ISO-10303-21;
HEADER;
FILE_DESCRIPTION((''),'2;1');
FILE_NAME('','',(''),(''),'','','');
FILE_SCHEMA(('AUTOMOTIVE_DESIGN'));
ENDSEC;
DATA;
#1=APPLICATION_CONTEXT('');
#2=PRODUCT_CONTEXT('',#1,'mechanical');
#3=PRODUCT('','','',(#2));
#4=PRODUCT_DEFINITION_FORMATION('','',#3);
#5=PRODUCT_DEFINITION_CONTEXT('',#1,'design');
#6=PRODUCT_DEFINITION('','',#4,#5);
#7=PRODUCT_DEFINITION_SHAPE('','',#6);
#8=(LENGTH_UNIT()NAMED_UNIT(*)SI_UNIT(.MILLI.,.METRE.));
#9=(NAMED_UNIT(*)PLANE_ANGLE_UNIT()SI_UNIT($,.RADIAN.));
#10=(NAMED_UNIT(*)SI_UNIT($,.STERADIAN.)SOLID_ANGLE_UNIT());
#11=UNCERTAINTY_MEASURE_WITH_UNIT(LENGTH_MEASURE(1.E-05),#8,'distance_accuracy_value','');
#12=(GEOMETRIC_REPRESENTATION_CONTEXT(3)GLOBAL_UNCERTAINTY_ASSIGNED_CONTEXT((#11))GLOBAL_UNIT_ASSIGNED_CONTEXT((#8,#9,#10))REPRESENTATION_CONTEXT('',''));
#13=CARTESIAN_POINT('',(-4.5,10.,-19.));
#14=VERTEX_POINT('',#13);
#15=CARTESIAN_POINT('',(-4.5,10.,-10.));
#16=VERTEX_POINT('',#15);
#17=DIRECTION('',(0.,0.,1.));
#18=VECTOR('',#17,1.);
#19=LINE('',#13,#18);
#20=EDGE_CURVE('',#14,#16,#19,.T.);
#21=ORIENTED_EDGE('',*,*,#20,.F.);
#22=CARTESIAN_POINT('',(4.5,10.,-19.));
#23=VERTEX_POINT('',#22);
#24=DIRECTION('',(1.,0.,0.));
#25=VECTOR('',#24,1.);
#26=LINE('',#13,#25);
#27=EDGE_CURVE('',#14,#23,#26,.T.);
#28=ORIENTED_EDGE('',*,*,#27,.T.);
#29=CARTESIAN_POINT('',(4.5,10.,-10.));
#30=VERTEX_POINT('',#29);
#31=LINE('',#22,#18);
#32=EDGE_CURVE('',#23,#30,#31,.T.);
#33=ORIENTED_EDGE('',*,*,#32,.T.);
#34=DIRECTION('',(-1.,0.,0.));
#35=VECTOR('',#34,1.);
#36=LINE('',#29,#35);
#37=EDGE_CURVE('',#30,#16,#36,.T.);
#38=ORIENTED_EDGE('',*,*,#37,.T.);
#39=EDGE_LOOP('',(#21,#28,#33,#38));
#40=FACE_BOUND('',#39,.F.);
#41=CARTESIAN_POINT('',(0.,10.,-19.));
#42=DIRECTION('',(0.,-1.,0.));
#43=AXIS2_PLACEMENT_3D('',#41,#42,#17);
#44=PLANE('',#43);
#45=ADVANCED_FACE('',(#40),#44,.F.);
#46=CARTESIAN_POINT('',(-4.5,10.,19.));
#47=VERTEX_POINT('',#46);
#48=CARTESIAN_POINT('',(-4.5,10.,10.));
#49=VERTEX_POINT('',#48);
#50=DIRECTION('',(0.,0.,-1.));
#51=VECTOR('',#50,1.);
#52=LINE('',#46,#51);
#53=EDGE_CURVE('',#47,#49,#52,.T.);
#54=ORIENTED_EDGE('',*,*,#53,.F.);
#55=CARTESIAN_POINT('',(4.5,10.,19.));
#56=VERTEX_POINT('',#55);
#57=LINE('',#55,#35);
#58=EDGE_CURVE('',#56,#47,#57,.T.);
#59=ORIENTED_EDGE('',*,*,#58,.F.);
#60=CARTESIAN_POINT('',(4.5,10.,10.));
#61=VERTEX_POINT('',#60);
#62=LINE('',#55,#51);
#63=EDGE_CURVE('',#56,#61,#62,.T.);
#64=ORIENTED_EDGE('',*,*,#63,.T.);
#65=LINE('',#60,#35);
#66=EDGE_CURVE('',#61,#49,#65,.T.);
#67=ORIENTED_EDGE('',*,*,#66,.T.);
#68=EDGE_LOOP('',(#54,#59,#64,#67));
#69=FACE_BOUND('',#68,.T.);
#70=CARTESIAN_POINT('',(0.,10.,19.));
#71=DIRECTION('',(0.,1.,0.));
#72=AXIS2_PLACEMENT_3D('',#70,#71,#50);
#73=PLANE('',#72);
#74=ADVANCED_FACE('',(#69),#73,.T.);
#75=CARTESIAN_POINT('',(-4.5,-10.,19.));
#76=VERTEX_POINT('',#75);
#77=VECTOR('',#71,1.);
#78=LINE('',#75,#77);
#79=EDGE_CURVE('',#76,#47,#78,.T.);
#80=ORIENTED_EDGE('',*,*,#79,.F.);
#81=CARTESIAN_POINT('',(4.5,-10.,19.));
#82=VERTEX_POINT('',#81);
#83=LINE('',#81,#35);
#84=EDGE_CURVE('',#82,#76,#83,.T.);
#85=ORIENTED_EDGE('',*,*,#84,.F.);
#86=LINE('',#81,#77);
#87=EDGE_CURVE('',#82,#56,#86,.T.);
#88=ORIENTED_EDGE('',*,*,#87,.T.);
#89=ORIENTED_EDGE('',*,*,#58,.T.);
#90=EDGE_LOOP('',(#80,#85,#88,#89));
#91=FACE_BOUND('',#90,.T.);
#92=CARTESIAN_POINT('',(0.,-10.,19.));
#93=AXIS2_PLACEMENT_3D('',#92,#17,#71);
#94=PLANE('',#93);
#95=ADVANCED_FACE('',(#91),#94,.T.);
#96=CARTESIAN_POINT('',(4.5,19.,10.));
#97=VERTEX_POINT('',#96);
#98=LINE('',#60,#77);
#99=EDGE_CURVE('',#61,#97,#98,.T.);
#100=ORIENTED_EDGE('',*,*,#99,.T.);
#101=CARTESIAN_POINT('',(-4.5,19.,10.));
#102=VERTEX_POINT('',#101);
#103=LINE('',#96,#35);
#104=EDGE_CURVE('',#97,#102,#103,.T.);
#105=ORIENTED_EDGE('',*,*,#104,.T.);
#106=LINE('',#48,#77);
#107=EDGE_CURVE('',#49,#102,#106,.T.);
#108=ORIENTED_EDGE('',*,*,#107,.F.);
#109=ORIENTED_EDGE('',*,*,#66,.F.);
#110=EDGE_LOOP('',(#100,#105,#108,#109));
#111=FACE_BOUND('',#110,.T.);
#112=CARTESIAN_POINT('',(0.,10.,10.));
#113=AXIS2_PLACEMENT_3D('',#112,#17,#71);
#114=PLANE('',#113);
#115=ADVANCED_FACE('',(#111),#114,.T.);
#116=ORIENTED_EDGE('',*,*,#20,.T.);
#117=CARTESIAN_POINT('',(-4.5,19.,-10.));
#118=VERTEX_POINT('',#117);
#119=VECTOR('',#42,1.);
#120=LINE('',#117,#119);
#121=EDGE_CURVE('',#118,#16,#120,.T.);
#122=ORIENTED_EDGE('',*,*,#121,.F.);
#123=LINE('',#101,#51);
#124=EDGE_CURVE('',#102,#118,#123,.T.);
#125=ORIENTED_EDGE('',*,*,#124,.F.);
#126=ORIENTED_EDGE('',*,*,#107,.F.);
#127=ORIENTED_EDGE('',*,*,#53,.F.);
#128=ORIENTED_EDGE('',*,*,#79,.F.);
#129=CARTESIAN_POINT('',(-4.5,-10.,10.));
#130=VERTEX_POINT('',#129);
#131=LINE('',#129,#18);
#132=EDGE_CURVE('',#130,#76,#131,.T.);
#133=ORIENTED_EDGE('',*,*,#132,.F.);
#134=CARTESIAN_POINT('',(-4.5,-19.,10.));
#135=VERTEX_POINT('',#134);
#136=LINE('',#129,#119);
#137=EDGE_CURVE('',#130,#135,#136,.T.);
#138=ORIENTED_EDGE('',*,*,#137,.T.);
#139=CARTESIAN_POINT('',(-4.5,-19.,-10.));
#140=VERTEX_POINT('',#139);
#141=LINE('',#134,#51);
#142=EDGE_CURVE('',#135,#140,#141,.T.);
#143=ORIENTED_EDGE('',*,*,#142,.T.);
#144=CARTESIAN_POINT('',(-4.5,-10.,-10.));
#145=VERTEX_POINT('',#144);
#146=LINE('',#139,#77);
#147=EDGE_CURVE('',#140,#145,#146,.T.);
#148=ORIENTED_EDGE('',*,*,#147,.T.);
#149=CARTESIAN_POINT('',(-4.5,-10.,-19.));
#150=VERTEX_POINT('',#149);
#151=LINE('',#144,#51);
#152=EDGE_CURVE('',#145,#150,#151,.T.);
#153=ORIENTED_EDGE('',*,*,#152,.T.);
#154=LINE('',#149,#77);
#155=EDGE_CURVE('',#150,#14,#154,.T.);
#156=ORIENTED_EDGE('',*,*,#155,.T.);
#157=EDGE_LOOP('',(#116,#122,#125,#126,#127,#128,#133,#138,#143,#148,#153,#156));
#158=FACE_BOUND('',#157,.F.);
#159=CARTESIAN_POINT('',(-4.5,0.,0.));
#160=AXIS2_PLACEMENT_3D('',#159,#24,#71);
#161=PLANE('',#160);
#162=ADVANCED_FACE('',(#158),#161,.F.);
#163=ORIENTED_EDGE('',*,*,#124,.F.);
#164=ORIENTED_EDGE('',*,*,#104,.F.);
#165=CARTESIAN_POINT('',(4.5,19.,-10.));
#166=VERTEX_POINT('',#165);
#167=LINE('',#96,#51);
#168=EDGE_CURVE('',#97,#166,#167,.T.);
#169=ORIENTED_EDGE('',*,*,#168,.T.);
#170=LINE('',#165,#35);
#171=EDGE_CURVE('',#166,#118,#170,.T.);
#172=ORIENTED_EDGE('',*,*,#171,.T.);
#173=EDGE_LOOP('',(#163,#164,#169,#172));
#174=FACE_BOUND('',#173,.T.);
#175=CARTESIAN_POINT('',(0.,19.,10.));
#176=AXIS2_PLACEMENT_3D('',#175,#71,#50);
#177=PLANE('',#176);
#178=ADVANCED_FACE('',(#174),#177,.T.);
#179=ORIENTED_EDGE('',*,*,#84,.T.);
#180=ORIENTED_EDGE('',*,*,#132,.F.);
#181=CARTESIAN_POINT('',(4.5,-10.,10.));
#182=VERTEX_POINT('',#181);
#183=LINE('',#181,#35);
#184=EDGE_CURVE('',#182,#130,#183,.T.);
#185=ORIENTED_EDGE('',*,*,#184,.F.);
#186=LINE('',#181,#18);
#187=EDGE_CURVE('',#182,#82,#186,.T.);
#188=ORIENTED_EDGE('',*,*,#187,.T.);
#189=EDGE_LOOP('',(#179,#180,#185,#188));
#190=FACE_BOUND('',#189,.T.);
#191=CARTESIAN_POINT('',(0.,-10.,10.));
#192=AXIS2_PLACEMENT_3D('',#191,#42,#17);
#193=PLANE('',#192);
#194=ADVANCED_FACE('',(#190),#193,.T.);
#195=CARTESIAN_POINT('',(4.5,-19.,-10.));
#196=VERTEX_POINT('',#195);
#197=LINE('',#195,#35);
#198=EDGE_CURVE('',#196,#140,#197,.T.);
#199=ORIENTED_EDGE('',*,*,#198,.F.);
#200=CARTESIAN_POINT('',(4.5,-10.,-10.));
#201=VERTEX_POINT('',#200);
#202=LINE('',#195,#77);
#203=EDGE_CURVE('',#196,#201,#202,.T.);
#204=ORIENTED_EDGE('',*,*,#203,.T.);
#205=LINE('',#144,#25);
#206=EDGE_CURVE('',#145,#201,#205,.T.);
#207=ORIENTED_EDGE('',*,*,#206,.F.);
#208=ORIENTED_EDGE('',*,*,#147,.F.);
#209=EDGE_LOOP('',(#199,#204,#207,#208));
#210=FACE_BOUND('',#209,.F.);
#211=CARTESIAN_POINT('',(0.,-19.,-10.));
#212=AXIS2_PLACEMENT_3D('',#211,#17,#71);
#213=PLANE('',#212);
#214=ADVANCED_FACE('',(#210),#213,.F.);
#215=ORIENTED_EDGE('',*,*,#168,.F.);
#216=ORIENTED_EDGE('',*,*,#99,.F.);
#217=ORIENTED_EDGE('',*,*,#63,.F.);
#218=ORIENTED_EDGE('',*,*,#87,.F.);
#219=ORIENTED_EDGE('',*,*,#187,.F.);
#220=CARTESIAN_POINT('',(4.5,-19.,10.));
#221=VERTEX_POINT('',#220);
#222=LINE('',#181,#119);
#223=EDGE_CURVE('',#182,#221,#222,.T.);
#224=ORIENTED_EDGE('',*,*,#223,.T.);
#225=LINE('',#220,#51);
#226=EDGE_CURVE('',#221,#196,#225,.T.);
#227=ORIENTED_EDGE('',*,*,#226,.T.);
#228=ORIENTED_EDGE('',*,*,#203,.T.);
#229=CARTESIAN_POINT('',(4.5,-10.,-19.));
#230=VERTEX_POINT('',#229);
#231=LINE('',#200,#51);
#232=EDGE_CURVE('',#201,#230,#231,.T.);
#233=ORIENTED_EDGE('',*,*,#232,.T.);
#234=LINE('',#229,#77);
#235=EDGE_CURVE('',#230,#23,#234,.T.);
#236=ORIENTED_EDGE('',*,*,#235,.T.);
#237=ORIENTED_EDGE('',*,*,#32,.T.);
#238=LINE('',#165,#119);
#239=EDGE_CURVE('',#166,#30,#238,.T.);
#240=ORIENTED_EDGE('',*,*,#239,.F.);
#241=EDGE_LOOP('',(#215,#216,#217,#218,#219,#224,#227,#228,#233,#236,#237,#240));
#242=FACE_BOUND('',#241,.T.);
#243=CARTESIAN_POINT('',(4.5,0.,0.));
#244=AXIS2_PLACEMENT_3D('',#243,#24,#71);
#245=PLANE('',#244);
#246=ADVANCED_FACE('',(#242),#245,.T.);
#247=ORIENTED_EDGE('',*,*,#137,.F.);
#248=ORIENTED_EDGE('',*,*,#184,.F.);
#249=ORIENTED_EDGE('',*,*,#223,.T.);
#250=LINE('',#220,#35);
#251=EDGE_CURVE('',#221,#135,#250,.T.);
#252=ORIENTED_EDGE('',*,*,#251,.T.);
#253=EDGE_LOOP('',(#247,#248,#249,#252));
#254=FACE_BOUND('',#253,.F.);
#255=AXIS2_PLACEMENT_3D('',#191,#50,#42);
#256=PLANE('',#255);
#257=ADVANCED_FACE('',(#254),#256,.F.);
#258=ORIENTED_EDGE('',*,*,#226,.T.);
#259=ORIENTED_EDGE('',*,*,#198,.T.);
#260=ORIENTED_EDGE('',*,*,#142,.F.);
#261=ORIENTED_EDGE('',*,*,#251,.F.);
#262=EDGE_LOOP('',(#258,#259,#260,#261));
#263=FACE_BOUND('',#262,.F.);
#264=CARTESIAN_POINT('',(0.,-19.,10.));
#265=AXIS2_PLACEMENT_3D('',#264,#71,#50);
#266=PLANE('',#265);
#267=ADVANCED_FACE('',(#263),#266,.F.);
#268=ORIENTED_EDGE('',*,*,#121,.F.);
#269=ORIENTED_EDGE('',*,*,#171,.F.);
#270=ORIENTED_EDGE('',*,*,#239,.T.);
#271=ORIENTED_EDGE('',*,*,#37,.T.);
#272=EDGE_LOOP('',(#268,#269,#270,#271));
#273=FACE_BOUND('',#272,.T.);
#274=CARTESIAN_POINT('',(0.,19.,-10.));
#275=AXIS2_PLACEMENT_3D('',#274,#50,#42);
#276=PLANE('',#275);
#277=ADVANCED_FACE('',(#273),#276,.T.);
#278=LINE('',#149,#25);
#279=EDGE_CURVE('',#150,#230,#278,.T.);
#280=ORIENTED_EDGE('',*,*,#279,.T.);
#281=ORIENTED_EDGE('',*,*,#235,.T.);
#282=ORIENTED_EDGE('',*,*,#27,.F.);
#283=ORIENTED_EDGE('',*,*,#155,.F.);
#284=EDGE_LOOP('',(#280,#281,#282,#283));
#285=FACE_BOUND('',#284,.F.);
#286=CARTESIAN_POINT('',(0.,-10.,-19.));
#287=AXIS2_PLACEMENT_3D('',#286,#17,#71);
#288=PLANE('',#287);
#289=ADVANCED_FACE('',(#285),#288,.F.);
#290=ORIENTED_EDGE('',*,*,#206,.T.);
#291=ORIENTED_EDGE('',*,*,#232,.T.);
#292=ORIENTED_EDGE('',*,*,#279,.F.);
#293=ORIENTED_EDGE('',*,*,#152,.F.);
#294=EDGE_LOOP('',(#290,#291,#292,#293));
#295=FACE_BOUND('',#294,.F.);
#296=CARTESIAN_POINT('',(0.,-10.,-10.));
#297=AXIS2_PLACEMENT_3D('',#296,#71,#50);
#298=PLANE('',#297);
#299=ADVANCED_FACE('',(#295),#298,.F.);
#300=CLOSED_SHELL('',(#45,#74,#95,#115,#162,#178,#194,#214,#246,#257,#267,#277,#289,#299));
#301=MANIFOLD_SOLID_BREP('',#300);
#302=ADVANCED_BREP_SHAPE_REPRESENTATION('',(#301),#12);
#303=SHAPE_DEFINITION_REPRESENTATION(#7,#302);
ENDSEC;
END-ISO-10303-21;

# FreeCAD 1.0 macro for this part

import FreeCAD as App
import Part
import Sketcher
from FreeCAD import Vector

doc = App.newDocument("Part")
body = doc.addObject("PartDesign::Body", "Body")

sketch1 = doc.addObject("Sketcher::SketchObject", "Sketch")
body.addObject(sketch1)
sketch1.AttachmentSupport = (doc.YZ_Plane, [""])
sketch1.MapMode = "FlatFace"
sketch1.addGeometry([
    Part.LineSegment(Vector(-19, -10, 0), Vector(-10, -10, 0)),
    Part.LineSegment(Vector(-10, -10, 0), Vector(-10, -19, 0)),
    Part.LineSegment(Vector(-10, -19, 0), Vector(10, -19, 0)),
    Part.LineSegment(Vector(10, -19, 0), Vector(10, -10, 0)),
    Part.LineSegment(Vector(10, -10, 0), Vector(19, -10, 0)),
    Part.LineSegment(Vector(19, -10, 0), Vector(19, 10, 0)),
    Part.LineSegment(Vector(19, 10, 0), Vector(10, 10, 0)),
    Part.LineSegment(Vector(10, 10, 0), Vector(10, 19, 0)),
    Part.LineSegment(Vector(10, 19, 0), Vector(-10, 19, 0)),
    Part.LineSegment(Vector(-10, 19, 0), Vector(-10, 10, 0)),
    Part.LineSegment(Vector(-10, 10, 0), Vector(-19, 10, 0)),
    Part.LineSegment(Vector(-19, 10, 0), Vector(-19, -10, 0)),
], False)
sketch1.addConstraint([
    Sketcher.Constraint("Coincident", 0, 2, 1, 1),
    Sketcher.Constraint("Coincident", 1, 2, 2, 1),
    Sketcher.Constraint("Coincident", 2, 2, 3, 1),
    Sketcher.Constraint("Coincident", 3, 2, 4, 1),
    Sketcher.Constraint("Coincident", 4, 2, 5, 1),
    Sketcher.Constraint("Coincident", 5, 2, 6, 1),
    Sketcher.Constraint("Coincident", 6, 2, 7, 1),
    Sketcher.Constraint("Coincident", 7, 2, 8, 1),
    Sketcher.Constraint("Coincident", 8, 2, 9, 1),
    Sketcher.Constraint("Coincident", 9, 2, 10, 1),
    Sketcher.Constraint("Coincident", 10, 2, 11, 1),
    Sketcher.Constraint("Coincident", 11, 2, 0, 1),
    Sketcher.Constraint("Horizontal", 0),
    Sketcher.Constraint("Vertical", 1),
    Sketcher.Constraint("Horizontal", 2),
    Sketcher.Constraint("Vertical", 3),
    Sketcher.Constraint("Horizontal", 4),
    Sketcher.Constraint("Vertical", 5),
    Sketcher.Constraint("Horizontal", 6),
    Sketcher.Constraint("Vertical", 7),
    Sketcher.Constraint("Horizontal", 8),
    Sketcher.Constraint("Vertical", 9),
    Sketcher.Constraint("Horizontal", 10),
    Sketcher.Constraint("Vertical", 11),
    Sketcher.Constraint("Symmetric", 0, 2, 6, 2, -1, 1),
    Sketcher.Constraint("Symmetric", 2, 2, 8, 2, -1, 1),
    Sketcher.Constraint("Symmetric", 4, 2, 10, 2, -1, 1),
    Sketcher.Constraint("Symmetric", 0, 2, 3, 2, -2),
    Sketcher.Constraint("Equal", 10, 1),
    Sketcher.Constraint("Equal", 8, 5),
    Sketcher.Constraint("DistanceX", 0, 1, 0, 2, 9.0),
    Sketcher.Constraint("DistanceX", 2, 1, 2, 2, 20.0),
])
pad1 = doc.addObject("PartDesign::Pad", "Pad")
body.addObject(pad1)
pad1.Profile = sketch1
pad1.Length = 9
pad1.Midplane = True

doc.recompute()
